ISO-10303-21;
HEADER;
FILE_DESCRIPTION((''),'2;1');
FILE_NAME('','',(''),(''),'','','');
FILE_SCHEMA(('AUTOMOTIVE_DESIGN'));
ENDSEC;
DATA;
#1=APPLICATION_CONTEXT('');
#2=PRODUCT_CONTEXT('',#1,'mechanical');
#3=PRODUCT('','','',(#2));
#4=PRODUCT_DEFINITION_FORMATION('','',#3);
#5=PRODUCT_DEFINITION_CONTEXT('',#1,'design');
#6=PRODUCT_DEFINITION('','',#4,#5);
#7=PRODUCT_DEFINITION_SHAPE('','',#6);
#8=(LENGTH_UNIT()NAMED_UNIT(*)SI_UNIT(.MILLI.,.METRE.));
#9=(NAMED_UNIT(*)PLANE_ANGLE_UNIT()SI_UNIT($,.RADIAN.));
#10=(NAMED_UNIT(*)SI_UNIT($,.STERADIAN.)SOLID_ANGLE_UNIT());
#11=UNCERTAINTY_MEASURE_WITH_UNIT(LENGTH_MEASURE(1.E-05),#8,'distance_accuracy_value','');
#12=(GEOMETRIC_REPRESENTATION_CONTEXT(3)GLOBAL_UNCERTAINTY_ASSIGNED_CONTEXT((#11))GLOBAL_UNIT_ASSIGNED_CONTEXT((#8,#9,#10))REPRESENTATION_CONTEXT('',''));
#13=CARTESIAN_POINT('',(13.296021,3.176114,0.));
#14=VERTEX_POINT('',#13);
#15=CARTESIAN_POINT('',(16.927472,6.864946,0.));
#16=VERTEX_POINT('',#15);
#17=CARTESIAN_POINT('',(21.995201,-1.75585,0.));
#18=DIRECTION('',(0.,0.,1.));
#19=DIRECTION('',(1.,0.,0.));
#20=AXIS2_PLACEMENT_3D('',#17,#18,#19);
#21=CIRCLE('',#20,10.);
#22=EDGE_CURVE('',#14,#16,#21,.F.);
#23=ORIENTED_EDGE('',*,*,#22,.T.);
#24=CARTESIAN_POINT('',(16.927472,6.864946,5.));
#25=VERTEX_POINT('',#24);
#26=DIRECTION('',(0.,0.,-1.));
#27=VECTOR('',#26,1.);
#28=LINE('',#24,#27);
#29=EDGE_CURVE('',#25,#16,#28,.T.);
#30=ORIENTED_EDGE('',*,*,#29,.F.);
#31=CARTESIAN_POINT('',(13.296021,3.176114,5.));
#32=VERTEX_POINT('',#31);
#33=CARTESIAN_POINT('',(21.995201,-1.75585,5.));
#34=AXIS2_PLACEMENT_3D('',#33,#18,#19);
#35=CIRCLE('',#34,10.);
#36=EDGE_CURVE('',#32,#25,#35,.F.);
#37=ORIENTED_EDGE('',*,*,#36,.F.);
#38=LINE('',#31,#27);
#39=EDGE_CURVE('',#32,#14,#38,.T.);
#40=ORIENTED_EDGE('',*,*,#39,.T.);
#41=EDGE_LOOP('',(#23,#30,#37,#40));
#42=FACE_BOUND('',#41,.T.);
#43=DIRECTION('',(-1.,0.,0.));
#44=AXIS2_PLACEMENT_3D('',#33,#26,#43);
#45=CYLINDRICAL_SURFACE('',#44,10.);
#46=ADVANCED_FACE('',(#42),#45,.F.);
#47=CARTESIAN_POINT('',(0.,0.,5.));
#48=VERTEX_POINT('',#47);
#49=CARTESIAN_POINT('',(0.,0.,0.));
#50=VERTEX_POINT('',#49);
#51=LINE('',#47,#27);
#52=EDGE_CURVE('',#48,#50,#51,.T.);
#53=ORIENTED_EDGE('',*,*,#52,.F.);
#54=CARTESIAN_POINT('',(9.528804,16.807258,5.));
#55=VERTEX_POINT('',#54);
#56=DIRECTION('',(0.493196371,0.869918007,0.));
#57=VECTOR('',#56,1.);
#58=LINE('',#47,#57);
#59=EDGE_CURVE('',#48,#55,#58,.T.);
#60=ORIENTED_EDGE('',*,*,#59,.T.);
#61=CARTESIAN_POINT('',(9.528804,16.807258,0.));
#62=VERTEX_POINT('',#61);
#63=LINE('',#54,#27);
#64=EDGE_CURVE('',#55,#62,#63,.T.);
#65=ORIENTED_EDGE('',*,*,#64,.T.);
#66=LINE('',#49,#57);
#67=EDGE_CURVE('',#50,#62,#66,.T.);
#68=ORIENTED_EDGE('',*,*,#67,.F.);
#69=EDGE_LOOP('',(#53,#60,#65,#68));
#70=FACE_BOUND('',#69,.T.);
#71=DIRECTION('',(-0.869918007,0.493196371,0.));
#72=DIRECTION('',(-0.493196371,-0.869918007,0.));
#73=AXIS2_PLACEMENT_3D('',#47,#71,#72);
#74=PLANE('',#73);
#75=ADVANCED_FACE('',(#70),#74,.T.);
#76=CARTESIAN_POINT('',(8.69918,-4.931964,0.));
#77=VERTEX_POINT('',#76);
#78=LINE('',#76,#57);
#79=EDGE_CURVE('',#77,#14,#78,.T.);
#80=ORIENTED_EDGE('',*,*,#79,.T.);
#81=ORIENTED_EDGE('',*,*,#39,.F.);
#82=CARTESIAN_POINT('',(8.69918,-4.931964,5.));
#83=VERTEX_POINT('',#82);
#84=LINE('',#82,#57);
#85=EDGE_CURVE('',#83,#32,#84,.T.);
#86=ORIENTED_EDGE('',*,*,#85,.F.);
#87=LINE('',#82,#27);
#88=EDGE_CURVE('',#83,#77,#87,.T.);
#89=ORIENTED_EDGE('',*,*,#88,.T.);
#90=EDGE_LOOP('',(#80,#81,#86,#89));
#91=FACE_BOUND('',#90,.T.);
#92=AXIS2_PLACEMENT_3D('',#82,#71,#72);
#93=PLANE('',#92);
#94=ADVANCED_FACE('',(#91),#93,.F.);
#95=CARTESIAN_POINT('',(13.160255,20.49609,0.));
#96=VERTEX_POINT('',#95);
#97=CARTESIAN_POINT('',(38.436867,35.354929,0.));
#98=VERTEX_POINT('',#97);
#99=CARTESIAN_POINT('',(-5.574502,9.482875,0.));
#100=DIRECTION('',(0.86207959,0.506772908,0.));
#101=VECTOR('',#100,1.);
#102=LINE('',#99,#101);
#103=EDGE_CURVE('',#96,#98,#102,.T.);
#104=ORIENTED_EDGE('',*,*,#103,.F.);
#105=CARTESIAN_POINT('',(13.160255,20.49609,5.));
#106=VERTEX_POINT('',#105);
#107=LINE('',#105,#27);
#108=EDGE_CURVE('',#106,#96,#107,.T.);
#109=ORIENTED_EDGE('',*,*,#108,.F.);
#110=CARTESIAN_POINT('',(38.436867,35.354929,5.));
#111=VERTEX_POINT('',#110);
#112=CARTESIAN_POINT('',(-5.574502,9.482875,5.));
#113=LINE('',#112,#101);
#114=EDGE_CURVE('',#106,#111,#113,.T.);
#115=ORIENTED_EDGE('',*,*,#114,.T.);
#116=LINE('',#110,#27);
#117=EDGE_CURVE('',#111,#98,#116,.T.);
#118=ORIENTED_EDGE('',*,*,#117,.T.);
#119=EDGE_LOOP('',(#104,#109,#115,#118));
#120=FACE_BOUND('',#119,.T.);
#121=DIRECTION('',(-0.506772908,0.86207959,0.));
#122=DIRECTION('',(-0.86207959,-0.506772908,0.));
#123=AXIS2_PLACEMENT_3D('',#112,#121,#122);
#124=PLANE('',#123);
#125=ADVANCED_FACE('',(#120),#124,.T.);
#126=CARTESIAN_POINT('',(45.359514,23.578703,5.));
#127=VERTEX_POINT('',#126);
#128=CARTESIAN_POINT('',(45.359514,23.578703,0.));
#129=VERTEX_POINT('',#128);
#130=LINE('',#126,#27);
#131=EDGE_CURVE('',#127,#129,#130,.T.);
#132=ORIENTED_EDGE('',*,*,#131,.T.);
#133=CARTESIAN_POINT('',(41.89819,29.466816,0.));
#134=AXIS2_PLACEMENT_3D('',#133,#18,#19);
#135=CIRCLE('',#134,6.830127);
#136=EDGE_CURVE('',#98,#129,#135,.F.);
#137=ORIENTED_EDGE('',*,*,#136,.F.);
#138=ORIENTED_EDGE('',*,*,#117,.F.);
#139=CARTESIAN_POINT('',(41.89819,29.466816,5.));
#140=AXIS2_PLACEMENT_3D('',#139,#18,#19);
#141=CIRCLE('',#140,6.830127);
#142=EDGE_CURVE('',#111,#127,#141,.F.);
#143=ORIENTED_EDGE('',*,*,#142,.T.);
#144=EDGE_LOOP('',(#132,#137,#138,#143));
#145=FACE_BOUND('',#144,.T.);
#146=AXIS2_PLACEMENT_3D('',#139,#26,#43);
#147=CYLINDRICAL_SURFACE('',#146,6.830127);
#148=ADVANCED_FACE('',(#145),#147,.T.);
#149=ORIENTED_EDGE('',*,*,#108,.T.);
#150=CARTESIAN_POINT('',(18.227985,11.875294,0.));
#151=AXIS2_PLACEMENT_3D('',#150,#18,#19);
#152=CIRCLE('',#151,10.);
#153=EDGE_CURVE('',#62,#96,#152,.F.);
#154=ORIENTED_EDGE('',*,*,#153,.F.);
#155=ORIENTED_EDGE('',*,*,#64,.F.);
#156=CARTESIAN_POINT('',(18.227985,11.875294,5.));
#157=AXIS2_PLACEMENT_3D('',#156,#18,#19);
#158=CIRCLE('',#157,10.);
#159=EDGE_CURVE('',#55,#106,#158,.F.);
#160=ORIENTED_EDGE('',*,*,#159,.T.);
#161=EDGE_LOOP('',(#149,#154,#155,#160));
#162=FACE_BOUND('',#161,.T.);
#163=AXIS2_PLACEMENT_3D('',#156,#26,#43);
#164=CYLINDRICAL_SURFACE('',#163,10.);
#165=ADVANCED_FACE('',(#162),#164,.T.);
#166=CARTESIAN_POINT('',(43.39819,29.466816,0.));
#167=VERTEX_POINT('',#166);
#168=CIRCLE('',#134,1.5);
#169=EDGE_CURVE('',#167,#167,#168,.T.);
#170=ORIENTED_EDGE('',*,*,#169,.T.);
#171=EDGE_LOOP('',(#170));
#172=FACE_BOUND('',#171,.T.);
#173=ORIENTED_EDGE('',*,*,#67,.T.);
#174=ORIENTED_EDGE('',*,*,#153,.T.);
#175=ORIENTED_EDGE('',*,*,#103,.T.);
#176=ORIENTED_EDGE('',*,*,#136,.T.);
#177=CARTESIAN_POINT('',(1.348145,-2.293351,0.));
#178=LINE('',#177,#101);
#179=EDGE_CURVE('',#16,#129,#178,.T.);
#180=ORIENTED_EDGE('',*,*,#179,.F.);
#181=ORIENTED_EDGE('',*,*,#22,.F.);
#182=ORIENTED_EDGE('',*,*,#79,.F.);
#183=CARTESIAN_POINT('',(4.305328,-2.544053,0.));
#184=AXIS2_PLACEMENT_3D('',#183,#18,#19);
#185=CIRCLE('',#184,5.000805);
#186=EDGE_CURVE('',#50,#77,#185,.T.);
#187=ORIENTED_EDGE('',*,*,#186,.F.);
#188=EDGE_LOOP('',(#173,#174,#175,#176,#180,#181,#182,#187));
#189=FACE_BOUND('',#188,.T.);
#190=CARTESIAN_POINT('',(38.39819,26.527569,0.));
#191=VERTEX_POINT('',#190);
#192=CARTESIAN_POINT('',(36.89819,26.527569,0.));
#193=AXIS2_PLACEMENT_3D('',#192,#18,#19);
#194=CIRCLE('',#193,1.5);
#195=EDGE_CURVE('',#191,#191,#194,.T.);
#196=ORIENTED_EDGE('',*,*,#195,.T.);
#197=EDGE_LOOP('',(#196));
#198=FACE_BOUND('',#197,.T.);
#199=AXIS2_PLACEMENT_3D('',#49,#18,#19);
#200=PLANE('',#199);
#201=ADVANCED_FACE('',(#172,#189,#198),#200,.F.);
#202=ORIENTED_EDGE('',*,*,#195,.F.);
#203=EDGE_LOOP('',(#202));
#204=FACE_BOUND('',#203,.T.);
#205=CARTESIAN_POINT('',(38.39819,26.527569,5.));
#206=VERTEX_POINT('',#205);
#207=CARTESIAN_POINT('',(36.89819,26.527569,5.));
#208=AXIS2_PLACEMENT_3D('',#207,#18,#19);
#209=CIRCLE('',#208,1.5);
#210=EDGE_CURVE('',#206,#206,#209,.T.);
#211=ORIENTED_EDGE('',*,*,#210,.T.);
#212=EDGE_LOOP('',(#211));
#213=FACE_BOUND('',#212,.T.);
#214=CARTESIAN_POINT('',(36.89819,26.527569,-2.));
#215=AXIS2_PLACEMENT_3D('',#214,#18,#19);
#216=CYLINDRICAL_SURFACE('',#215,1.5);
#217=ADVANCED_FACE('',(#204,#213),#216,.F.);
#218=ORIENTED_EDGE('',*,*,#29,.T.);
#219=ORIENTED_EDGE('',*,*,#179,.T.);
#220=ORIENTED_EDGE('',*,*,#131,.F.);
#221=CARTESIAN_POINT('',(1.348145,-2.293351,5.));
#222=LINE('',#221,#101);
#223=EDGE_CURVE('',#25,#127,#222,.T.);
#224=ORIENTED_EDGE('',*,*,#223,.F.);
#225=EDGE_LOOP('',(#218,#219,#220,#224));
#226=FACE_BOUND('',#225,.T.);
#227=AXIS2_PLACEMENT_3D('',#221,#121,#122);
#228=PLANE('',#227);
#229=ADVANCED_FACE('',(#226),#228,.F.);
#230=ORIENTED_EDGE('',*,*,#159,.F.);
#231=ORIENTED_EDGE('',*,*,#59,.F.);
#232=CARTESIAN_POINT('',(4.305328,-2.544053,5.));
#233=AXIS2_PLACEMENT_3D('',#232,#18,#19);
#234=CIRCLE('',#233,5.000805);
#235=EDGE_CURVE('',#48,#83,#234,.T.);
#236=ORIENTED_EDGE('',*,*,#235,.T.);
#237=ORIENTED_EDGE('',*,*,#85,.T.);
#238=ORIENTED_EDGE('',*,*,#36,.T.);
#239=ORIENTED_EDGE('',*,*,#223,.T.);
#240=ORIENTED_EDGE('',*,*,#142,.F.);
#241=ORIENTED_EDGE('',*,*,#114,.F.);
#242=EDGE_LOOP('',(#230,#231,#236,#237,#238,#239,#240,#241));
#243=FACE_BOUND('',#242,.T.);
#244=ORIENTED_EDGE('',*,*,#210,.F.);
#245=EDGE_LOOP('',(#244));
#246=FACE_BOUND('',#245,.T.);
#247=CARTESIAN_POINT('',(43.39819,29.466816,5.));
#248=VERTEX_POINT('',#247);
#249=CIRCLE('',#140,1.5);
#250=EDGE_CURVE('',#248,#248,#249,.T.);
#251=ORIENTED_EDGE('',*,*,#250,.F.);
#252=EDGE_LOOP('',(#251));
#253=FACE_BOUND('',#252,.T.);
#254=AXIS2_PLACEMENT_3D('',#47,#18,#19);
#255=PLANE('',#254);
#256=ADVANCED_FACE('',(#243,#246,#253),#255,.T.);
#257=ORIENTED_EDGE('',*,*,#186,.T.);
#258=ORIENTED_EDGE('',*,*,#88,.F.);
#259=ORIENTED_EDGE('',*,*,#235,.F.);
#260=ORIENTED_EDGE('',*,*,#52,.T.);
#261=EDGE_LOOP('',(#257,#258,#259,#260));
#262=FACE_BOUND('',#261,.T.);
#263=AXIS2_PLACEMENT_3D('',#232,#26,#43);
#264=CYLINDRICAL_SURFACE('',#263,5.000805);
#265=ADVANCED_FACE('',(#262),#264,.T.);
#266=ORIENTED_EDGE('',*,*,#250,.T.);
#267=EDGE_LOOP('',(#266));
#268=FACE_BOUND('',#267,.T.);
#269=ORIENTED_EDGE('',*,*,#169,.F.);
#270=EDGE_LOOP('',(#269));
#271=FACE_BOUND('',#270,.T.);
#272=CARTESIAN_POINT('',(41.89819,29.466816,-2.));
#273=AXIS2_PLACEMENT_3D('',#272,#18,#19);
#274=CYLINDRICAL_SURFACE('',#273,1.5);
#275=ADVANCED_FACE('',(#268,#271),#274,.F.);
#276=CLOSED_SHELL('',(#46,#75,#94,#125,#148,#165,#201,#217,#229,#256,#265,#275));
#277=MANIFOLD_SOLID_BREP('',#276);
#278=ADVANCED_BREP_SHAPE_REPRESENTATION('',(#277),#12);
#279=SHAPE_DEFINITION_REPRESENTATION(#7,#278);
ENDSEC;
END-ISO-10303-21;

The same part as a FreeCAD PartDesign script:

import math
import FreeCAD as App
import Part
import Sketcher
from FreeCAD import Vector
Q = App.Units.Quantity

doc = App.newDocument("Part")
params = doc.addObject("Spreadsheet::Sheet", "Params")
for row, (alias, value) in enumerate([
    ("sketch1_radius", "10 mm"),
    ("pad1_length", "5 mm"),
    ("sketch2_diameter", "3 mm"),
    ("pocket1_length", "7 mm"),
], start=1):
    params.set(f"A{row}", alias)
    params.set(f"B{row}", "=" + value)
    params.setAlias(f"B{row}", alias)

body = doc.addObject("PartDesign::Body", "Body")

sketch1 = doc.addObject("Sketcher::SketchObject", "Sketch")
body.addObject(sketch1)
sketch1.AttachmentSupport = (doc.XY_Plane, [""])
sketch1.MapMode = "FlatFace"
sketch1.addGeometry(Part.LineSegment(Vector(9.528804, 16.807258, 0), Vector(0, 0, 0)), False)
sketch1.addGeometry(Part.ArcOfCircle(Part.Circle(Vector(4.305328, -2.544053, 0), Vector(0, 0, 1), 5.000805), math.radians(149.42081), math.radians(331.477415)), False)
sketch1.addGeometry(Part.LineSegment(Vector(8.69918, -4.931964, 0), Vector(13.296021, 3.176114, 0)), False)
sketch1.addGeometry(Part.ArcOfCircle(Part.Circle(Vector(21.995201, -1.75585, 0), Vector(0, 0, 1), 10), math.radians(120.449113), math.radians(150.449113)), False)
sketch1.addGeometry(Part.LineSegment(Vector(16.927472, 6.864946, 0), Vector(45.359514, 23.578703, 0)), False)
sketch1.addGeometry(Part.ArcOfCircle(Part.Circle(Vector(41.89819, 29.466816, 0), Vector(0, 0, 1), 6.830127), math.radians(-59.550887), math.radians(120.449113)), False)
sketch1.addGeometry(Part.LineSegment(Vector(38.436867, 35.354929, 0), Vector(13.160255, 20.49609, 0)), False)
sketch1.addGeometry(Part.ArcOfCircle(Part.Circle(Vector(18.227985, 11.875294, 0), Vector(0, 0, 1), 10), math.radians(120.449113), math.radians(150.449113)), False)
sketch1.addConstraint(Sketcher.Constraint("Coincident", 0, 2, 1, 1))
sketch1.addConstraint(Sketcher.Constraint("Coincident", 1, 2, 2, 1))
sketch1.addConstraint(Sketcher.Constraint("Tangent", 2, 2, 3, 2))
sketch1.addConstraint(Sketcher.Constraint("Tangent", 3, 1, 4, 1))
sketch1.addConstraint(Sketcher.Constraint("Tangent", 4, 2, 5, 1))
sketch1.addConstraint(Sketcher.Constraint("Tangent", 5, 2, 6, 1))
sketch1.addConstraint(Sketcher.Constraint("Tangent", 6, 2, 7, 1))
sketch1.addConstraint(Sketcher.Constraint("Tangent", 7, 2, 0, 1))
sketch1.addConstraint(Sketcher.Constraint("Coincident", 0, 2, -1, 1))
sketch1.addConstraint(Sketcher.Constraint("Equal", 3, 7))
sketch1.addConstraint(Sketcher.Constraint("Parallel", 0, 2))
sketch1.addConstraint(Sketcher.Constraint("Parallel", 4, 6))
sketch1.addConstraint(Sketcher.Constraint("Radius", 3, Q("10 mm")))
sketch1.addConstraint(Sketcher.Constraint("Radius", 1, Q("5.000805 mm")))
sketch1.addConstraint(Sketcher.Constraint("Radius", 5, Q("6.830127 mm")))
sketch1.addConstraint(Sketcher.Constraint("DistanceY", 1, 3, 3, 1, Q("9.409 mm")))
sketch1.addConstraint(Sketcher.Constraint("DistanceX", -1, 1, 3, 3, Q("21.995201 mm")))
sketch1.addConstraint(Sketcher.Constraint("Distance", 0, Q("19.320508 mm")))
sketch1.addConstraint(Sketcher.Constraint("Distance", 2, Q("9.320508 mm")))
sketch1.addConstraint(Sketcher.Constraint("Distance", 6, Q("29.320508 mm")))
sketch1.addConstraint(Sketcher.Constraint("DistanceY", 3, 3, -1, 1, Q("1.75585 mm")))
sketch1.setExpression("Constraints[12]", "Params.sketch1_radius")
pad1 = doc.addObject("PartDesign::Pad", "Pad")
body.addObject(pad1)
pad1.Profile = sketch1
pad1.setExpression("Length", "Params.pad1_length")

sketch2 = doc.addObject("Sketcher::SketchObject", "Sketch001")
body.addObject(sketch2)
sketch2.AttachmentSupport = (doc.XY_Plane, [""])
sketch2.MapMode = "FlatFace"
sketch2.AttachmentOffset = App.Placement(Vector(0, 0, 5), App.Rotation())
sketch2.addGeometry(Part.Circle(Vector(41.89819, 29.466816, 0), Vector(0, 0, 1), 1.5), False)
sketch2.addGeometry(Part.Circle(Vector(36.89819, 26.527569, 0), Vector(0, 0, 1), 1.5), False)
sketch2.addConstraint(Sketcher.Constraint("Equal", 0, 1))
sketch2.addConstraint(Sketcher.Constraint("Diameter", 0, Q("3 mm")))
sketch2.addConstraint(Sketcher.Constraint("DistanceX", 1, 3, 0, 3, Q("5 mm")))
sketch2.addConstraint(Sketcher.Constraint("DistanceX", -1, 1, 0, 3, Q("41.89819 mm")))
sketch2.addConstraint(Sketcher.Constraint("DistanceY", -1, 1, 1, 3, Q("26.527569 mm")))
sketch2.addConstraint(Sketcher.Constraint("DistanceY", -1, 1, 0, 3, Q("29.466816 mm")))
sketch2.setExpression("Constraints[1]", "Params.sketch2_diameter")
pocket1 = doc.addObject("PartDesign::Pocket", "Pocket")
body.addObject(pocket1)
pocket1.Profile = sketch2
pocket1.setExpression("Length", "Params.pocket1_length")

doc.recompute()
